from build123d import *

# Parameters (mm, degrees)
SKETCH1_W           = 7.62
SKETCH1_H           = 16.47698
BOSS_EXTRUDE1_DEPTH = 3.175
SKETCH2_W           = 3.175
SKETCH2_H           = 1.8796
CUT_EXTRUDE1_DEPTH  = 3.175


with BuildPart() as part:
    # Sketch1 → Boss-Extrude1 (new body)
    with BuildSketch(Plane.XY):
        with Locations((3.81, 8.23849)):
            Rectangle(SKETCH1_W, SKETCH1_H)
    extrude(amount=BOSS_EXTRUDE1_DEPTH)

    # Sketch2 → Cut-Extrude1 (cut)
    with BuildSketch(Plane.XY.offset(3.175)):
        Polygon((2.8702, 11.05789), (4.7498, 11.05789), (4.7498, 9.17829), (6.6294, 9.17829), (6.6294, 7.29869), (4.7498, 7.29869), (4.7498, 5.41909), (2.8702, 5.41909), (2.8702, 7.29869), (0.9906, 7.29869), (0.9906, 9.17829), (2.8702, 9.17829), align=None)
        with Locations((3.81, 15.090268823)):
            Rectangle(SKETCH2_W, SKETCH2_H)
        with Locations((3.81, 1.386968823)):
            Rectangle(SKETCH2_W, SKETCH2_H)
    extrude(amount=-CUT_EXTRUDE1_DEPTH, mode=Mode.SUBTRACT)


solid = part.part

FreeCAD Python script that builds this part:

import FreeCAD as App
import Part
import Sketcher

V = App.Vector
Q = App.Units.Quantity


def add_polygon(sketch, points):
    """Adds a closed chain of lines whose ends are joined by coincident constraints."""
    first, n = sketch.GeometryCount, len(points)
    for a, b in zip(points, points[1:] + points[:1]):
        sketch.addGeometry(Part.LineSegment(App.Vector(*a, 0), App.Vector(*b, 0)), False)
    for i in range(n):
        sketch.addConstraint(Sketcher.Constraint("Coincident", first + i, 2, first + (i + 1) % n, 1))

doc = App.newDocument("Part")
body = doc.addObject("PartDesign::Body", "Body")

# Sketch on XY plane
sketch1 = body.newObject("Sketcher::SketchObject", "Sketch")
sketch1.AttachmentSupport = (doc.getObject("XY_Plane"), [""])
sketch1.MapMode = "FlatFace"
add_polygon(sketch1, [(0, 16), (0, 0), (8, 0), (8, 16)])  # lines 0-3
sketch1.addConstraint(Sketcher.Constraint("Vertical", 0))
sketch1.addConstraint(Sketcher.Constraint("Horizontal", 1))
sketch1.addConstraint(Sketcher.Constraint("Vertical", 2))
sketch1.addConstraint(Sketcher.Constraint("Horizontal", 3))
sketch1.addConstraint(Sketcher.Constraint("Coincident", 0, 2, -1, 1))
sketch1.addConstraint(Sketcher.Constraint("DistanceX", 1, 1, 1, 2, Q("0.3 in")))
sketch1.addConstraint(Sketcher.Constraint("DistanceY", 0, 2, 0, 1, Q("0.6487 in")))
pad1 = body.newObject("PartDesign::Pad", "Pad")
pad1.Profile = sketch1
pad1.Length = Q("0.125 in")

# Sketch on XY plane
sketch2 = body.newObject("Sketcher::SketchObject", "Sketch001")
sketch2.AttachmentSupport = (doc.getObject("XY_Plane"), [""])
sketch2.MapMode = "FlatFace"
sketch2.AttachmentOffset = App.Placement(V(0, 0, 0.125 * 25.4), App.Rotation())
add_polygon(sketch2, [(4.7, 11.1), (2.9, 11.1), (2.9, 9.2), (1, 9.2), (1, 7.3), (2.9, 7.3), (2.9, 5.4), (4.7, 5.4), (4.7, 7.3), (6.6, 7.3), (6.6, 9.2), (4.7, 9.2)])  # lines 0-11
add_polygon(sketch2, [(2.2, 16), (2.2, 14.2), (5.4, 14.2), (5.4, 16)])  # lines 12-15
add_polygon(sketch2, [(2.2, 2.3), (2.2, 0.4), (5.4, 0.4), (5.4, 2.3)])  # lines 16-19
sketch2.addConstraint(Sketcher.Constraint("Horizontal", 0))
sketch2.addConstraint(Sketcher.Constraint("Vertical", 1))
sketch2.addConstraint(Sketcher.Constraint("Horizontal", 2))
sketch2.addConstraint(Sketcher.Constraint("Vertical", 3))
sketch2.addConstraint(Sketcher.Constraint("Horizontal", 4))
sketch2.addConstraint(Sketcher.Constraint("Vertical", 5))
sketch2.addConstraint(Sketcher.Constraint("Horizontal", 6))
sketch2.addConstraint(Sketcher.Constraint("Vertical", 7))
sketch2.addConstraint(Sketcher.Constraint("Horizontal", 8))
sketch2.addConstraint(Sketcher.Constraint("Vertical", 9))
sketch2.addConstraint(Sketcher.Constraint("Horizontal", 10))
sketch2.addConstraint(Sketcher.Constraint("Vertical", 11))
sketch2.addConstraint(Sketcher.Constraint("Vertical", 12))
sketch2.addConstraint(Sketcher.Constraint("Horizontal", 13))
sketch2.addConstraint(Sketcher.Constraint("Vertical", 14))
sketch2.addConstraint(Sketcher.Constraint("Horizontal", 15))
sketch2.addConstraint(Sketcher.Constraint("Vertical", 16))
sketch2.addConstraint(Sketcher.Constraint("Horizontal", 17))
sketch2.addConstraint(Sketcher.Constraint("Vertical", 18))
sketch2.addConstraint(Sketcher.Constraint("Horizontal", 19))
sketch2.addConstraint(Sketcher.Constraint("Horizontal", 4, 2, 7, 2))
sketch2.addConstraint(Sketcher.Constraint("Horizontal", 2, 2, 9, 2))
sketch2.addConstraint(Sketcher.Constraint("Vertical", 1, 2, 4, 2))
sketch2.addConstraint(Sketcher.Constraint("Vertical", 7, 2, 10, 2))
sketch2.addConstraint(Sketcher.Constraint("Vertical", 15, 2, 16, 2))
sketch2.addConstraint(Sketcher.Constraint("Vertical", 14, 2, 17, 2))
sketch2.addConstraint(Sketcher.Constraint("Equal", 0, 2))
sketch2.addConstraint(Sketcher.Constraint("Equal", 6, 8))
sketch2.addConstraint(Sketcher.Constraint("Equal", 10, 1))
sketch2.addConstraint(Sketcher.Constraint("Equal", 1, 3))
sketch2.addConstraint(Sketcher.Constraint("Equal", 3, 5))
sketch2.addConstraint(Sketcher.Constraint("Equal", 11, 12))
sketch2.addConstraint(Sketcher.Constraint("Equal", 14, 16))
sketch2.addConstraint(Sketcher.Constraint("DistanceX", 0, 2, 0, 1, Q("0.074 in")))
sketch2.addConstraint(Sketcher.Constraint("DistanceX", 13, 1, 13, 2, Q("0.125 in")))
sketch2.addConstraint(Sketcher.Constraint("DistanceX", -1, 1, 0, 2, Q("0.113 in")))
sketch2.addConstraint(Sketcher.Constraint("DistanceX", -1, 1, 12, 2, Q("0.0875 in")))
sketch2.addConstraint(Sketcher.Constraint("DistanceY", -1, 1, 0, 2, Q("11.05789 mm")))
sketch2.addConstraint(Sketcher.Constraint("DistanceY", -1, 1, 12, 2, Q("14.150469 mm")))
sketch2.addConstraint(Sketcher.Constraint("DistanceY", -1, 1, 16, 2, Q("0.447169 mm")))
pocket1 = body.newObject("PartDesign::Pocket", "Pocket")
pocket1.Profile = sketch2
pocket1.Length = Q("0.125 in")

doc.recompute()
